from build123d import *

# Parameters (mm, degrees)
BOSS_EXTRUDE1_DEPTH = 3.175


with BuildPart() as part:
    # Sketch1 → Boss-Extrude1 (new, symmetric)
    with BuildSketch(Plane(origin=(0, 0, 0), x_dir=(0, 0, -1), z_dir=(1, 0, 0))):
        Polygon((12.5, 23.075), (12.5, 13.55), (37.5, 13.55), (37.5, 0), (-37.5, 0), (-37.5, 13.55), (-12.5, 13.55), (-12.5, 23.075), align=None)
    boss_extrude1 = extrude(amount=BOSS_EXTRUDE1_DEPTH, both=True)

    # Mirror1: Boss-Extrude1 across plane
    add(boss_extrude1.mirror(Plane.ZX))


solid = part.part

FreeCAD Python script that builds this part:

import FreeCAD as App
import Part
import Sketcher

V = App.Vector
Q = App.Units.Quantity


def add_polygon(sketch, points):
    """Adds a closed chain of lines whose ends are joined by coincident constraints."""
    first, n = sketch.GeometryCount, len(points)
    for a, b in zip(points, points[1:] + points[:1]):
        sketch.addGeometry(Part.LineSegment(App.Vector(*a, 0), App.Vector(*b, 0)), False)
    for i in range(n):
        sketch.addConstraint(Sketcher.Constraint("Coincident", first + i, 2, first + (i + 1) % n, 1))

doc = App.newDocument("Part")
body = doc.addObject("PartDesign::Body", "Body")

sketch1 = body.newObject("Sketcher::SketchObject", "Sketch")
sketch1.AttachmentSupport = (doc.getObject("YZ_Plane"), [""])
sketch1.MapMode = "FlatFace"
add_polygon(sketch1, [(14, -12), (23, -12), (23, 12), (14, 12), (14, 38), (0, 38), (0, -38), (14, -38)])
sketch1.addConstraint([
    Sketcher.Constraint("Horizontal", 0),
    Sketcher.Constraint("Vertical", 1),
    Sketcher.Constraint("Horizontal", 2),
    Sketcher.Constraint("Vertical", 3),
    Sketcher.Constraint("Horizontal", 4),
    Sketcher.Constraint("Vertical", 5),
    Sketcher.Constraint("Horizontal", 6),
    Sketcher.Constraint("Vertical", 7),
    Sketcher.Constraint("Symmetric", 4, 2, 5, 2, -1, 1),
    Sketcher.Constraint("Symmetric", 2, 2, 7, 2, -1),
    Sketcher.Constraint("Equal", 1, 3),
    Sketcher.Constraint("DistanceY", 1, 1, 1, 2, Q("25 mm")),
    Sketcher.Constraint("DistanceX", 4, 2, 4, 1, Q("13.55 mm")),
    Sketcher.Constraint("DistanceX", 0, 1, 0, 2, Q("9.525 mm")),
])
pad1 = body.newObject("PartDesign::Pad", "Pad")
pad1.Profile = sketch1
pad1.Length = 6.35
pad1.Midplane = True
doc.recompute()

mirrored = body.newObject("PartDesign::Mirrored", "Mirrored")
mirrored.Originals = [pad1]
mirrored.MirrorPlane = (doc.getObject("XZ_Plane"), [""])
body.Tip = mirrored

doc.recompute()
